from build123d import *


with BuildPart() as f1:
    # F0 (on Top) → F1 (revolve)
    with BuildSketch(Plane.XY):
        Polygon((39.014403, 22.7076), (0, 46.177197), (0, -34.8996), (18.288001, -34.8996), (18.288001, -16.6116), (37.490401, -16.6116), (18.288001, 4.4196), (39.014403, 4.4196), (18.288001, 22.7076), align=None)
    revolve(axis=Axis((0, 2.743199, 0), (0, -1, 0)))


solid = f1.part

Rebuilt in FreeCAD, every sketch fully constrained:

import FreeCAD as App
import Part
import Sketcher
Q = App.Units.Quantity

doc = App.newDocument("Part")
body = doc.addObject("PartDesign::Body", "Body")

# Sketch on XY plane
sketch1 = body.newObject("Sketcher::SketchObject", "Sketch")
sketch1.AttachmentSupport = (doc.getObject("XY_Plane"), [""])
sketch1.MapMode = "FlatFace"
sketch1.addGeometry([
    Part.LineSegment(App.Vector(39, 23, 0), App.Vector(0, 46, 0)),  # 0
    Part.LineSegment(App.Vector(0, 46, 0), App.Vector(0, -35, 0)),  # 1
    Part.LineSegment(App.Vector(0, -35, 0), App.Vector(18, -35, 0)),  # 2
    Part.LineSegment(App.Vector(18, -35, 0), App.Vector(18, -17, 0)),  # 3
    Part.LineSegment(App.Vector(18, -17, 0), App.Vector(37, -17, 0)),  # 4
    Part.LineSegment(App.Vector(37, -17, 0), App.Vector(18, 4, 0)),  # 5
    Part.LineSegment(App.Vector(18, 4, 0), App.Vector(39, 4, 0)),  # 6
    Part.LineSegment(App.Vector(39, 4, 0), App.Vector(18, 23, 0)),  # 7
    Part.LineSegment(App.Vector(18, 23, 0), App.Vector(39, 23, 0)),  # 8
], False)
sketch1.addConstraint([
    Sketcher.Constraint("Coincident", 0, 2, 1, 1),
    Sketcher.Constraint("Coincident", 1, 2, 2, 1),
    Sketcher.Constraint("Coincident", 2, 2, 3, 1),
    Sketcher.Constraint("Coincident", 3, 2, 4, 1),
    Sketcher.Constraint("Coincident", 4, 2, 5, 1),
    Sketcher.Constraint("Coincident", 5, 2, 6, 1),
    Sketcher.Constraint("Coincident", 6, 2, 7, 1),
    Sketcher.Constraint("Coincident", 7, 2, 8, 1),
    Sketcher.Constraint("Coincident", 8, 2, 0, 1),
    Sketcher.Constraint("Vertical", 1),
    Sketcher.Constraint("Horizontal", 2),
    Sketcher.Constraint("Vertical", 3),
    Sketcher.Constraint("Horizontal", 4),
    Sketcher.Constraint("Horizontal", 6),
    Sketcher.Constraint("Horizontal", 8),
    Sketcher.Constraint("PointOnObject", 0, 2, -2),
    Sketcher.Constraint("Vertical", 3, 2, 5, 2),
    Sketcher.Constraint("Vertical", 5, 2, 7, 2),
    Sketcher.Constraint("Vertical", 6, 2, 8, 2),
    Sketcher.Constraint("Equal", 2, 3),
    Sketcher.Constraint("DistanceX", 2, 1, 2, 2, Q("0.72 in")),
    Sketcher.Constraint("DistanceX", 4, 1, 4, 2, Q("0.756 in")),
    Sketcher.Constraint("DistanceX", 6, 1, 6, 2, Q("0.8160001 in")),
    Sketcher.Constraint("DistanceY", 1, 2, 1, 1, Q("3.1919999 in")),
    Sketcher.Constraint("DistanceY", 5, 2, 7, 2, Q("0.72 in")),
    Sketcher.Constraint("DistanceY", -1, 1, 0, 2, Q("1.8179999 in")),
    Sketcher.Constraint("DistanceY", -1, 1, 5, 2, Q("0.174 in")),
])
revolution = body.newObject("PartDesign::Revolution", "Revolution")
revolution.Profile = sketch1
revolution.ReferenceAxis = (sketch1, ["V_Axis"])
revolution.Angle = 360

doc.recompute()
